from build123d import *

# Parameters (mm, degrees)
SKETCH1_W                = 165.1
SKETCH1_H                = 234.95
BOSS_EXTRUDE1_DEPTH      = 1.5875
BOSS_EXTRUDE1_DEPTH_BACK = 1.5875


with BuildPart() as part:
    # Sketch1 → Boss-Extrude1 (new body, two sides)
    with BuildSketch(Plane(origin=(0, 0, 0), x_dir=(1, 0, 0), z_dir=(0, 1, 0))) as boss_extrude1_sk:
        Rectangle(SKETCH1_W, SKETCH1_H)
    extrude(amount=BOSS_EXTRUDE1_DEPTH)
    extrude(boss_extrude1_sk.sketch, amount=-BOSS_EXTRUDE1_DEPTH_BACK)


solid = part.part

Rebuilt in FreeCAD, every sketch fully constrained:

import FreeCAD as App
import Part
import Sketcher
from FreeCAD import Vector
Q = App.Units.Quantity

doc = App.newDocument("Part")
params = doc.addObject("Spreadsheet::Sheet", "Params")
for row, (alias, value) in enumerate([
    ("sketch1_width", "6.5 in"),
    ("sketch1_height", "9.25 in"),
    ("pad1_length", "0.0625 in"),
    ("pad1_length2", "0.0625 in"),
], start=1):
    params.set(f"A{row}", alias)
    params.set(f"B{row}", "=" + value)
    params.setAlias(f"B{row}", alias)

body = doc.addObject("PartDesign::Body", "Body")

sketch1 = body.newObject("Sketcher::SketchObject", "Sketch")
sketch1.AttachmentSupport = (doc.getObject("XZ_Plane"), [""])
sketch1.MapMode = "FlatFace"
sketch1.addGeometry(Part.LineSegment(Vector(-83, -117, 0), Vector(-83, 117, 0)), False)
sketch1.addGeometry(Part.LineSegment(Vector(-83, 117, 0), Vector(83, 117, 0)), False)
sketch1.addGeometry(Part.LineSegment(Vector(83, 117, 0), Vector(83, -117, 0)), False)
sketch1.addGeometry(Part.LineSegment(Vector(83, -117, 0), Vector(-83, -117, 0)), False)
sketch1.addConstraint(Sketcher.Constraint("Coincident", 0, 2, 1, 1))
sketch1.addConstraint(Sketcher.Constraint("Coincident", 1, 2, 2, 1))
sketch1.addConstraint(Sketcher.Constraint("Coincident", 2, 2, 3, 1))
sketch1.addConstraint(Sketcher.Constraint("Coincident", 3, 2, 0, 1))
sketch1.addConstraint(Sketcher.Constraint("Vertical", 0))
sketch1.addConstraint(Sketcher.Constraint("Horizontal", 1))
sketch1.addConstraint(Sketcher.Constraint("Vertical", 2))
sketch1.addConstraint(Sketcher.Constraint("Horizontal", 3))
sketch1.addConstraint(Sketcher.Constraint("Symmetric", 0, 2, 2, 2, -1, 1))
sketch1.addConstraint(Sketcher.Constraint("DistanceX", 1, 1, 1, 2, Q("6.5 in")))
sketch1.addConstraint(Sketcher.Constraint("DistanceY", 0, 1, 0, 2, Q("9.25 in")))
sketch1.setExpression("Constraints[9]", "Params.sketch1_width")
sketch1.setExpression("Constraints[10]", "Params.sketch1_height")
pad1 = body.newObject("PartDesign::Pad", "Pad")
pad1.Profile = sketch1
pad1.Type = "TwoLengths"
pad1.setExpression("Length", "Params.pad1_length")
pad1.setExpression("Length2", "Params.pad1_length2")
pad1.Reversed = True

doc.recompute()
